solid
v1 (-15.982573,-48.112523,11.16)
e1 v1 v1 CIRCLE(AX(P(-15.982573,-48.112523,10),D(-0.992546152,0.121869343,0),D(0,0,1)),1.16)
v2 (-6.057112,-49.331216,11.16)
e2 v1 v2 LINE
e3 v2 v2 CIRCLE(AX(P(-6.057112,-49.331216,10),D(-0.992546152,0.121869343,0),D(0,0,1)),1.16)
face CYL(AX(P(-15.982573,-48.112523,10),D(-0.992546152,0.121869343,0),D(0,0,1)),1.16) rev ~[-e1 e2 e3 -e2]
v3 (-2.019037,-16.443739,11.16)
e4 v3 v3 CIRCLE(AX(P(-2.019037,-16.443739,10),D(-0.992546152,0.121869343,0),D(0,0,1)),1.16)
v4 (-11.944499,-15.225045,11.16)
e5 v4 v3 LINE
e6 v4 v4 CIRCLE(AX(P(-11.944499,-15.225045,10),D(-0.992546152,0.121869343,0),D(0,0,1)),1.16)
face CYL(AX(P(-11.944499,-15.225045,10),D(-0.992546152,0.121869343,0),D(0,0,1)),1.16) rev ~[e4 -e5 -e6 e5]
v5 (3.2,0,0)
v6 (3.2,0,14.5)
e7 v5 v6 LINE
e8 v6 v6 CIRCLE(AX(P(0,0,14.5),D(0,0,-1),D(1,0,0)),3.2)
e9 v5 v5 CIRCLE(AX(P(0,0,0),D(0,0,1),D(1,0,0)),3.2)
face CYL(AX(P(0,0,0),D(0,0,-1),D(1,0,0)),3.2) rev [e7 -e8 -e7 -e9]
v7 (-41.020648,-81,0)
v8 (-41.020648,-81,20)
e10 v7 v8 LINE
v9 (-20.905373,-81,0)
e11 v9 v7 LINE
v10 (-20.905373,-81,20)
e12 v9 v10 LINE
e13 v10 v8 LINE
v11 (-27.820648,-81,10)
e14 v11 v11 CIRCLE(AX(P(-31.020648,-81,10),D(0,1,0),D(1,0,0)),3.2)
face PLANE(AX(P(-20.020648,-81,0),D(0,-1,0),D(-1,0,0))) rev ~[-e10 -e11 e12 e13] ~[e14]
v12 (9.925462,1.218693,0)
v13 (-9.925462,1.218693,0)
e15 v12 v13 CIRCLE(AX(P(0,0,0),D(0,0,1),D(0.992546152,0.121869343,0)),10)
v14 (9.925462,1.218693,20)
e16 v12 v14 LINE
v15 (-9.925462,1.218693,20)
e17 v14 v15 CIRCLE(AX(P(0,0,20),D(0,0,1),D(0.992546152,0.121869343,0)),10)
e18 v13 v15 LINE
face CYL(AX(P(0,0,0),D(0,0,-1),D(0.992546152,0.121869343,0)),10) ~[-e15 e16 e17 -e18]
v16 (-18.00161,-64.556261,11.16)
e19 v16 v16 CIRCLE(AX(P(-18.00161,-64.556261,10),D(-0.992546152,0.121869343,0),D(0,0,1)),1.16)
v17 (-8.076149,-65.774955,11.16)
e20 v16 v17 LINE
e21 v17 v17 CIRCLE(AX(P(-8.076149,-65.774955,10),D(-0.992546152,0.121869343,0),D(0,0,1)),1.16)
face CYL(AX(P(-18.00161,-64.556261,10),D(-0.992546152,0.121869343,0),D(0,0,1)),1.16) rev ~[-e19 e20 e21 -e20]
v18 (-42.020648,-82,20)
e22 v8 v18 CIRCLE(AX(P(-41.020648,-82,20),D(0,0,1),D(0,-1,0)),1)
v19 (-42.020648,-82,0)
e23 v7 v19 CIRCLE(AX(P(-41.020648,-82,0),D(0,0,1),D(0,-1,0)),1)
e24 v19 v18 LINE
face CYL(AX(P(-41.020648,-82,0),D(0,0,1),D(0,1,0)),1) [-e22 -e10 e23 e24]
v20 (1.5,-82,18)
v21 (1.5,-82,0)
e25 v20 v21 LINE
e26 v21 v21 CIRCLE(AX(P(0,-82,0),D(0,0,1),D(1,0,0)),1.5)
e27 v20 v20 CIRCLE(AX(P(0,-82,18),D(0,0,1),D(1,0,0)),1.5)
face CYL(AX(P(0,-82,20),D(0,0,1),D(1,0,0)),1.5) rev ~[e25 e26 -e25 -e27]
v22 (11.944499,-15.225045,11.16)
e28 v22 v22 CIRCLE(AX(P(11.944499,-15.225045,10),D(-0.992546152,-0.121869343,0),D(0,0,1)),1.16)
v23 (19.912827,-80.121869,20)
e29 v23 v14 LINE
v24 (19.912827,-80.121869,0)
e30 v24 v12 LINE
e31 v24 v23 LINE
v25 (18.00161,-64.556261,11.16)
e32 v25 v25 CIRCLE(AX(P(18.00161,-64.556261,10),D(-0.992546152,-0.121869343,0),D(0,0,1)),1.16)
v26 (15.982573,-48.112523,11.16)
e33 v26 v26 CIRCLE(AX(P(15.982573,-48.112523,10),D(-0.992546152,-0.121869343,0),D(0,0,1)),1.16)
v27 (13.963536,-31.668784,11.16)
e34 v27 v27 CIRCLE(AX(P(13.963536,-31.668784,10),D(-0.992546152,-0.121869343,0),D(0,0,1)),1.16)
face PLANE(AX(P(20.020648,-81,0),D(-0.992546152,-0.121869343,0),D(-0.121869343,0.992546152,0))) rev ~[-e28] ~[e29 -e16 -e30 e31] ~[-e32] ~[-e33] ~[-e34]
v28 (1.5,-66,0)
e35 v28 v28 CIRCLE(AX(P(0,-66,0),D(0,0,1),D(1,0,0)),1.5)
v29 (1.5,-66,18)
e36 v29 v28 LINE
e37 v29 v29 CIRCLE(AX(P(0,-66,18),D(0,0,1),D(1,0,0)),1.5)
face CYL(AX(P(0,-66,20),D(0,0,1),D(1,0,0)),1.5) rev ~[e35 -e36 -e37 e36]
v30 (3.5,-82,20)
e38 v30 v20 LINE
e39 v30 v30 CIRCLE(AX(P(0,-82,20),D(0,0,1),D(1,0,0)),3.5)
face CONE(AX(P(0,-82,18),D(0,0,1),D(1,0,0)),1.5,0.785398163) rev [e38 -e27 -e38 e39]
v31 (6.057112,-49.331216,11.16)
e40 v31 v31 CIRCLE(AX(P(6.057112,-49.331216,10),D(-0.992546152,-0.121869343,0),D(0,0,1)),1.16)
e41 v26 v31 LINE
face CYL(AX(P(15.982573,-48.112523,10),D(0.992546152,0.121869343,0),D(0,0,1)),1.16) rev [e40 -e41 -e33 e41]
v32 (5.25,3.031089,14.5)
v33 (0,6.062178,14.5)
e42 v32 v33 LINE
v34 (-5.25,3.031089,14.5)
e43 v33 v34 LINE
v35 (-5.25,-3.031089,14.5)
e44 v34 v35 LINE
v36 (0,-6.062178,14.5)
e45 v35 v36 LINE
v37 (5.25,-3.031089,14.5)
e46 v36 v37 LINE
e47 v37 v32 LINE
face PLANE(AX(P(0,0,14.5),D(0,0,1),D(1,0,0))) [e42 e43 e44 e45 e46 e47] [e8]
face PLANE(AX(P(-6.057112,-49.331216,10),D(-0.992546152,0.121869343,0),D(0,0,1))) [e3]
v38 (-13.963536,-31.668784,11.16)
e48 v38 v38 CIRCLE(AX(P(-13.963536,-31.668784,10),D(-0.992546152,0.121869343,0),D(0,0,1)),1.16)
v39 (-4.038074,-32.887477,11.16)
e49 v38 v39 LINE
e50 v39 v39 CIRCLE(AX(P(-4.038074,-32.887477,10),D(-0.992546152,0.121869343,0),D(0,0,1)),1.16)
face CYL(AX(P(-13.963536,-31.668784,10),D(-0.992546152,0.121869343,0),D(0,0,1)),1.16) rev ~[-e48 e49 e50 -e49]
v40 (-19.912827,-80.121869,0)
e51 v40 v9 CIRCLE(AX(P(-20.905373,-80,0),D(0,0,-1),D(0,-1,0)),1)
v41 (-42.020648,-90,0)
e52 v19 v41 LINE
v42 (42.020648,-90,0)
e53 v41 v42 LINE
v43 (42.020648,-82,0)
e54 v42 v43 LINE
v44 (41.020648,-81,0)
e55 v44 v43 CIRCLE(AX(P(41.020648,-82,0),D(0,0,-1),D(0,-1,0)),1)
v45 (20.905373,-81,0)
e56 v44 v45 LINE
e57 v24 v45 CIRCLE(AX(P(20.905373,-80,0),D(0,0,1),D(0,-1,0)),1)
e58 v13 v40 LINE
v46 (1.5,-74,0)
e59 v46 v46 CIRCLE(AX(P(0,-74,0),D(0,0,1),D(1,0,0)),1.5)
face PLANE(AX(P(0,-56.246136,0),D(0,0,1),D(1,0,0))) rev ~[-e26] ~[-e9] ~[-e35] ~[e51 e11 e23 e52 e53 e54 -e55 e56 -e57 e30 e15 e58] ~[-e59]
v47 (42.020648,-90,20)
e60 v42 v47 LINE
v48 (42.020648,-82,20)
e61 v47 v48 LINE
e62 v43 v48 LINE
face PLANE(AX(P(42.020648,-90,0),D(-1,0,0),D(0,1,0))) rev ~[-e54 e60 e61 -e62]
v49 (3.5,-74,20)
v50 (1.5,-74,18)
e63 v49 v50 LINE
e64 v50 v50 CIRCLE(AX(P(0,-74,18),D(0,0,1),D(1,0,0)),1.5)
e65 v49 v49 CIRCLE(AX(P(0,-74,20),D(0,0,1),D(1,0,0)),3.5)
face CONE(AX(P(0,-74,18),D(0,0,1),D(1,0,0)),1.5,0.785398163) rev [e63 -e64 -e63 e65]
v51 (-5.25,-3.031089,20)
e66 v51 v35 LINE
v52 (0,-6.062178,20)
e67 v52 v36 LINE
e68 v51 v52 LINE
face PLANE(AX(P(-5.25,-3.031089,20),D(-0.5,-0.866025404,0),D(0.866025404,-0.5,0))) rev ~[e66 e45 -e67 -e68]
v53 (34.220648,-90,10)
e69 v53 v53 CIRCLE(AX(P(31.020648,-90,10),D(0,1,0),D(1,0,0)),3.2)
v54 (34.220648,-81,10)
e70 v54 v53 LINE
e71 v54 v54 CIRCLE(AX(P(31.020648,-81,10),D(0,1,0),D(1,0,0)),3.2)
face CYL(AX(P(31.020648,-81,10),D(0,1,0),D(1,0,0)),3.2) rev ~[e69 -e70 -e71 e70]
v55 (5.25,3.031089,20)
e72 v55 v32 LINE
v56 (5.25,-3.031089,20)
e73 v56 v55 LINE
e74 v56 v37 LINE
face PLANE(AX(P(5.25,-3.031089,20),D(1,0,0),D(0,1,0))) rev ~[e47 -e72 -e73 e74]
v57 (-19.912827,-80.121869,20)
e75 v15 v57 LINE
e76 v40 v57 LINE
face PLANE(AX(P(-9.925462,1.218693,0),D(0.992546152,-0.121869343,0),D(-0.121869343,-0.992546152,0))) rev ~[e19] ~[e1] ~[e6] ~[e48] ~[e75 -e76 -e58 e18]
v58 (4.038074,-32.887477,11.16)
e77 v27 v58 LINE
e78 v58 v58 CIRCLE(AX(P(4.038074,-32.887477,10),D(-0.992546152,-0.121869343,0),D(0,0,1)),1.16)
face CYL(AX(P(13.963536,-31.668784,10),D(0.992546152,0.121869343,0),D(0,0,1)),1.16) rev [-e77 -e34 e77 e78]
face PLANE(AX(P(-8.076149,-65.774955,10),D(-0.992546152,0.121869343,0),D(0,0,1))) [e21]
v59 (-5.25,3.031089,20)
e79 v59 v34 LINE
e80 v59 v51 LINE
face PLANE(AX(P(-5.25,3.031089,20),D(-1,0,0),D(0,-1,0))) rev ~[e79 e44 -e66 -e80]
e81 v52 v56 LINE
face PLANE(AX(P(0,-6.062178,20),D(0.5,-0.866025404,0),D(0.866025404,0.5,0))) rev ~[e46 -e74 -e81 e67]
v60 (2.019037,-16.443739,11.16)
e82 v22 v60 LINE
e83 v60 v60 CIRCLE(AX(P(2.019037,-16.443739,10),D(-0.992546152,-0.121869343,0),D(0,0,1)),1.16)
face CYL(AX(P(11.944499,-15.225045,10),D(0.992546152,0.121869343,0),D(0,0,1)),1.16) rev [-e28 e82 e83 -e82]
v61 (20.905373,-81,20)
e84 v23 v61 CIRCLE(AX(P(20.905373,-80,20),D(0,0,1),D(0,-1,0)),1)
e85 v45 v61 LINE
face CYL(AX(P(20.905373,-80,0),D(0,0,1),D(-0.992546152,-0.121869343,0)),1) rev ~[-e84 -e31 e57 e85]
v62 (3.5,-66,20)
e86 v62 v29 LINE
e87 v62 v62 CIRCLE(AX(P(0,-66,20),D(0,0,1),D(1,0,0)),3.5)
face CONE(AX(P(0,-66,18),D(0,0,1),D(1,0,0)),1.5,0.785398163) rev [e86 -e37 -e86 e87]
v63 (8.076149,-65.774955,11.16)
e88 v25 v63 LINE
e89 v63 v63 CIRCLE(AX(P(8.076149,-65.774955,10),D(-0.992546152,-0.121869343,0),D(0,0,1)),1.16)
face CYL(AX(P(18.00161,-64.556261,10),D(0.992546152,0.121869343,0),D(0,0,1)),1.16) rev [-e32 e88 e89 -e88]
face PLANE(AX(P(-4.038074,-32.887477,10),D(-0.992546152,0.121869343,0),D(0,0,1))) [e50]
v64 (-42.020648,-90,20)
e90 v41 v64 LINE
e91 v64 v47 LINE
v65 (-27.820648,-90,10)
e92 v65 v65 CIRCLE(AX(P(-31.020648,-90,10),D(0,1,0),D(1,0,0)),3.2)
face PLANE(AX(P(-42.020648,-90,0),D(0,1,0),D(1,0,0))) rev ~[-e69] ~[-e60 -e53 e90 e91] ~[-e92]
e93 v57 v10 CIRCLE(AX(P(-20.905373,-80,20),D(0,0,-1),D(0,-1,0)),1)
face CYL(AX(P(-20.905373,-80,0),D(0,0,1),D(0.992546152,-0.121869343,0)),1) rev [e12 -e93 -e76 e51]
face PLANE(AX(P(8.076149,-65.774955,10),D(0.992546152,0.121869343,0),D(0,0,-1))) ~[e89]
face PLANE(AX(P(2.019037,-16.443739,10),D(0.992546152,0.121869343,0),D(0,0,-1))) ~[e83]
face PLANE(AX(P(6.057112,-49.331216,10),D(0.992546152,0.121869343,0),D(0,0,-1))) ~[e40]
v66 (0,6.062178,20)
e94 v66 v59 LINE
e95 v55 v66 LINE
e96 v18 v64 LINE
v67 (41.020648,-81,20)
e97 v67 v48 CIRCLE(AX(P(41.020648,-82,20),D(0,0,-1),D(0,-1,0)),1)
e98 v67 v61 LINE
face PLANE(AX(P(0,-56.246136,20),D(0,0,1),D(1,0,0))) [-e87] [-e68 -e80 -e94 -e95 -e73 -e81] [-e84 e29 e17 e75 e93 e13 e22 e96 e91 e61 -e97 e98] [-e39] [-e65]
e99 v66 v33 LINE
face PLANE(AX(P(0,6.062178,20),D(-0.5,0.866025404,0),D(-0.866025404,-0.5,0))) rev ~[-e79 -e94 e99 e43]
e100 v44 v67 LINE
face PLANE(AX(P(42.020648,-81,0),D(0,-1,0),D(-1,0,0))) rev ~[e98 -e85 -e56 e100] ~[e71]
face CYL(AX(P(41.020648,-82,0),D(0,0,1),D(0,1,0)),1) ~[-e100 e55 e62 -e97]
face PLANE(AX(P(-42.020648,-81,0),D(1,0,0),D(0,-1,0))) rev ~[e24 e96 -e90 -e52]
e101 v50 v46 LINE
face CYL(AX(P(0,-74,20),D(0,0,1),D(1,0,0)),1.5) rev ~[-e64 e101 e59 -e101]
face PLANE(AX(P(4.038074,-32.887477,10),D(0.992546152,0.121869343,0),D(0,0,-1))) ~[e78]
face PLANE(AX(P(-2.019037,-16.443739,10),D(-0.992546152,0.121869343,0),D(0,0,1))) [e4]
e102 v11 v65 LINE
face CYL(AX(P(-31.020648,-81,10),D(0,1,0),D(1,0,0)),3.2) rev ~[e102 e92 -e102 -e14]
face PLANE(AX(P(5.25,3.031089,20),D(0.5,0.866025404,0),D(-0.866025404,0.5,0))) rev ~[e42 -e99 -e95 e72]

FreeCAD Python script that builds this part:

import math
import FreeCAD as App
import Part
import Sketcher
from FreeCAD import Vector
Q = App.Units.Quantity


def edges_at(feature, points):
    """Names of the edges that pass closest to the given points."""
    edges = feature.Shape.Edges
    near = lambda p: min(range(len(edges)), key=lambda i: edges[i].distToShape(Part.Vertex(*p))[0])
    return sorted({f"Edge{near(p) + 1}" for p in points})

doc = App.newDocument("Part")
body = doc.addObject("PartDesign::Body", "Body")

sketch1 = body.newObject("Sketcher::SketchObject", "Sketch")
sketch1.AttachmentSupport = (doc.getObject("XY_Plane"), [""])
sketch1.MapMode = "FlatFace"
sketch1.addGeometry([
    Part.LineSegment(Vector(20.020648, -81, 0), Vector(9.925462, 1.218693, 0)),
    Part.ArcOfCircle(Part.Circle(Vector(0, 0, 0), Vector(0, 0, 1), 10), math.radians(7), math.radians(173)),
    Part.LineSegment(Vector(-9.925462, 1.218693, 0), Vector(-20.020648, -81, 0)),
    Part.LineSegment(Vector(-20.020648, -81, 0), Vector(-42.020648, -81, 0)),
    Part.LineSegment(Vector(-42.020648, -81, 0), Vector(-42.020648, -90, 0)),
    Part.LineSegment(Vector(-42.020648, -90, 0), Vector(42.020648, -90, 0)),
    Part.LineSegment(Vector(42.020648, -90, 0), Vector(42.020648, -81, 0)),
    Part.LineSegment(Vector(42.020648, -81, 0), Vector(20.020648, -81, 0)),
    Part.Circle(Vector(0, 0, 0), Vector(0, 0, 1), 3.2),
], False)
sketch1.addConstraint([
    Sketcher.Constraint("Tangent", 0, 2, 1, 1),
    Sketcher.Constraint("Tangent", 1, 2, 2, 1),
    Sketcher.Constraint("Coincident", 2, 2, 3, 1),
    Sketcher.Constraint("Coincident", 3, 2, 4, 1),
    Sketcher.Constraint("Coincident", 4, 2, 5, 1),
    Sketcher.Constraint("Coincident", 5, 2, 6, 1),
    Sketcher.Constraint("Coincident", 6, 2, 7, 1),
    Sketcher.Constraint("Coincident", 7, 2, 0, 1),
    Sketcher.Constraint("Horizontal", 3),
    Sketcher.Constraint("Vertical", 4),
    Sketcher.Constraint("Horizontal", 5),
    Sketcher.Constraint("Vertical", 6),
    Sketcher.Constraint("Horizontal", 7),
    Sketcher.Constraint("Coincident", 1, 3, -1, 1),
    Sketcher.Constraint("Coincident", 8, 3, -1, 1),
    Sketcher.Constraint("Symmetric", 3, 2, 6, 2, -2),
    Sketcher.Constraint("Horizontal", 0, 2, 1, 2),
    Sketcher.Constraint("Radius", 1, Q("10 mm")),
    Sketcher.Constraint("Diameter", 8, Q("6.4 mm")),
    Sketcher.Constraint("DistanceX", 3, 2, 3, 1, Q("22 mm")),
    Sketcher.Constraint("DistanceY", 4, 2, 4, 1, Q("9 mm")),
    Sketcher.Constraint("Angle", 0, Q("97 deg")),
    Sketcher.Constraint("DistanceY", 2, 2, -1, 1, Q("81 mm")),
])
pad1 = body.newObject("PartDesign::Pad", "Pad")
pad1.Profile = sketch1
pad1.Length = 20

sketch2 = body.newObject("Sketcher::SketchObject", "Sketch001")
sketch2.AttachmentSupport = (doc.getObject("XZ_Plane"), [""])
sketch2.MapMode = "FlatFace"
sketch2.AttachmentOffset = App.Placement(Vector(0, 0, 81), App.Rotation())
sketch2.addGeometry([
    Part.Circle(Vector(-31.020648, 10, 0), Vector(0, 0, 1), 3.2),
    Part.Circle(Vector(31.020648, 10, 0), Vector(0, 0, 1), 3.2),
], False)
sketch2.addConstraint([
    Sketcher.Constraint("Equal", 0, 1),
    Sketcher.Constraint("Symmetric", 0, 3, 1, 3, -2),
    Sketcher.Constraint("Diameter", 0, Q("6.4 mm")),
    Sketcher.Constraint("DistanceY", -1, 1, 0, 3, Q("10 mm")),
    Sketcher.Constraint("DistanceX", 0, 3, -1, 1, Q("31.020648 mm")),
])
pocket1 = body.newObject("PartDesign::Pocket", "Pocket")
pocket1.Profile = sketch2
pocket1.Type = "ThroughAll"
pocket1.Reversed = True

sketch3 = body.newObject("Sketcher::SketchObject", "Sketch002")
sketch3.AttachmentSupport = (doc.getObject("XY_Plane"), [""])
sketch3.MapMode = "FlatFace"
sketch3.AttachmentOffset = App.Placement(Vector(0, 0, 20), App.Rotation())
sketch3.addGeometry([
    Part.LineSegment(Vector(0, 6.062178, 0), Vector(-5.25, 3.031089, 0)),
    Part.LineSegment(Vector(-5.25, 3.031089, 0), Vector(-5.25, -3.031089, 0)),
    Part.LineSegment(Vector(-5.25, -3.031089, 0), Vector(0, -6.062178, 0)),
    Part.LineSegment(Vector(0, -6.062178, 0), Vector(5.25, -3.031089, 0)),
    Part.LineSegment(Vector(5.25, -3.031089, 0), Vector(5.25, 3.031089, 0)),
    Part.LineSegment(Vector(5.25, 3.031089, 0), Vector(0, 6.062178, 0)),
], False)
sketch3.addConstraint([
    Sketcher.Constraint("Coincident", 0, 2, 1, 1),
    Sketcher.Constraint("Coincident", 1, 2, 2, 1),
    Sketcher.Constraint("Coincident", 2, 2, 3, 1),
    Sketcher.Constraint("Coincident", 3, 2, 4, 1),
    Sketcher.Constraint("Coincident", 4, 2, 5, 1),
    Sketcher.Constraint("Coincident", 5, 2, 0, 1),
    Sketcher.Constraint("Vertical", 1),
    Sketcher.Constraint("Vertical", 4),
    Sketcher.Constraint("Symmetric", 0, 2, 3, 2, -1, 1),
    Sketcher.Constraint("Symmetric", 2, 2, 5, 2, -1, 1),
    Sketcher.Constraint("PointOnObject", 2, 2, -2),
    Sketcher.Constraint("Parallel", 2, 5),
    Sketcher.Constraint("Horizontal", 1, 2, 3, 2),
    Sketcher.Constraint("Angle", 0, Q("-150 deg")),
    Sketcher.Constraint("DistanceX", 1, 2, 3, 2, Q("10.5 mm")),
    Sketcher.Constraint("DistanceY", 1, 2, 1, 1, Q("6.062178 mm")),
])
pocket2 = body.newObject("PartDesign::Pocket", "Pocket001")
pocket2.Profile = sketch3
pocket2.Length = 5.5

sketch4 = body.newObject("Sketcher::SketchObject", "Sketch003")
sketch4.AttachmentSupport = (doc.getObject("XY_Plane"), [""])
sketch4.MapMode = "FlatFace"
sketch4.AttachmentOffset = App.Placement(Vector(0, 0, 20), App.Rotation())
sketch4.addGeometry([
    Part.Circle(Vector(0, -66, 0), Vector(0, 0, 1), 1.5),
    Part.Circle(Vector(0, -74, 0), Vector(0, 0, 1), 1.5),
    Part.Circle(Vector(0, -82, 0), Vector(0, 0, 1), 1.5),
], False)
sketch4.addConstraint([
    Sketcher.Constraint("Equal", 0, 1),
    Sketcher.Constraint("Equal", 1, 2),
    Sketcher.Constraint("PointOnObject", 0, 3, -2),
    Sketcher.Constraint("PointOnObject", 1, 3, -2),
    Sketcher.Constraint("PointOnObject", 2, 3, -2),
    Sketcher.Constraint("Diameter", 0, Q("3 mm")),
    Sketcher.Constraint("DistanceY", 0, 3, -1, 1, Q("66 mm")),
    Sketcher.Constraint("DistanceY", 1, 3, -1, 1, Q("74 mm")),
    Sketcher.Constraint("DistanceY", 2, 3, -1, 1, Q("82 mm")),
])
pocket3 = body.newObject("PartDesign::Pocket", "Pocket002")
pocket3.Profile = sketch4
pocket3.Type = "ThroughAll"
doc.recompute()

chamfer = body.newObject("PartDesign::Chamfer", "Chamfer")
chamfer.Base = (pocket3, edges_at(pocket3, [(-1.5, -66, 20), (-1.5, -74, 20), (-1.5, -82, 20)]))
chamfer.Size = 2

sketch5 = body.newObject("Sketcher::SketchObject", "Sketch004")
sketch5.Placement = App.Placement(Vector(-9.925462, 1.218693, 0), App.Rotation(Vector(0, 0, 1), Vector(0.121869343, 0.992546152, 0), Vector(-0.992546152, 0.121869343, 0), "ZXY"))
sketch5.addGeometry([
    Part.Circle(Vector(10, -16.567228, 0), Vector(0, 0, 1), 1.16),
    Part.Circle(Vector(10, -33.134457, 0), Vector(0, 0, 1), 1.16),
    Part.Circle(Vector(10, -49.701685, 0), Vector(0, 0, 1), 1.16),
    Part.Circle(Vector(10, -66.268913, 0), Vector(0, 0, 1), 1.16),
], False)
sketch5.addConstraint([
    Sketcher.Constraint("Equal", 0, 1),
    Sketcher.Constraint("Equal", 1, 2),
    Sketcher.Constraint("Equal", 2, 3),
    Sketcher.Constraint("Vertical", 0, 3, 1, 3),
    Sketcher.Constraint("Vertical", 1, 3, 2, 3),
    Sketcher.Constraint("Vertical", 2, 3, 3, 3),
    Sketcher.Constraint("Diameter", 0, Q("2.32 mm")),
    Sketcher.Constraint("DistanceX", -1, 1, 0, 3, Q("10 mm")),
    Sketcher.Constraint("DistanceY", 0, 3, -1, 1, Q("16.567228 mm")),
    Sketcher.Constraint("DistanceY", 1, 3, 0, 3, Q("16.567228 mm")),
    Sketcher.Constraint("DistanceY", 2, 3, 1, 3, Q("16.567228 mm")),
    Sketcher.Constraint("DistanceY", 3, 3, 2, 3, Q("16.567228 mm")),
])
pocket4 = body.newObject("PartDesign::Pocket", "Pocket003")
pocket4.Profile = sketch5
pocket4.Length = 10
doc.recompute()

mirrored = body.newObject("PartDesign::Mirrored", "Mirrored")
mirrored.Originals = [pocket4]
mirrored.MirrorPlane = (doc.getObject("YZ_Plane"), [""])
body.Tip = mirrored
doc.recompute()

fillet = body.newObject("PartDesign::Fillet", "Fillet")
fillet.Base = (mirrored, edges_at(mirrored, [
    (-42.021, -81, 10),
    (-20.021, -81, 10),
    (20.021, -81, 10),
    (42.021, -81, 10),
]))
fillet.Radius = 1

doc.recompute()
